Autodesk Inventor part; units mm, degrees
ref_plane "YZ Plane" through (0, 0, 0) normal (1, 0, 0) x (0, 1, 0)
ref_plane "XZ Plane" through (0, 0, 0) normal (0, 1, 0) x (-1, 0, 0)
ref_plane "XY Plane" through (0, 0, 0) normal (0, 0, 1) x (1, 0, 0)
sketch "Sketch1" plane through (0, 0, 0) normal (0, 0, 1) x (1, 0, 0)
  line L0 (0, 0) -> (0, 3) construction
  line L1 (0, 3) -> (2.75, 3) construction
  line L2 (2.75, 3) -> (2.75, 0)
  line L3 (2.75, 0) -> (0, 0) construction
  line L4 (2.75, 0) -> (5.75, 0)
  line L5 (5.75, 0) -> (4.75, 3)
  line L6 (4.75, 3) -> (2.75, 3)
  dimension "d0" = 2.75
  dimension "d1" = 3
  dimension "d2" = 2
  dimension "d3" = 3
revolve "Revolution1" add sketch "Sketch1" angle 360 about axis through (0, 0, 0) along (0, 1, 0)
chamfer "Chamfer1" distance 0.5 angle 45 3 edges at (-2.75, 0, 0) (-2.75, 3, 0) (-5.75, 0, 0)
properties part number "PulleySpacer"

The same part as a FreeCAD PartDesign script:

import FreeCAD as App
import Part
import Sketcher
from FreeCAD import Vector
Q = App.Units.Quantity


def edges_at(feature, points):
    """Names of the edges that pass closest to the given points."""
    edges = feature.Shape.Edges
    near = lambda p: min(range(len(edges)), key=lambda i: edges[i].distToShape(Part.Vertex(*p))[0])
    return sorted({f"Edge{near(p) + 1}" for p in points})

doc = App.newDocument("Part")
params = doc.addObject("Spreadsheet::Sheet", "Params")
for row, (alias, value) in enumerate([
    ("sketch1_width", "2 mm"),
    ("sketch1_width2", "3 mm"),
    ("revolution_angle", "360 deg"),
    ("chamfer_size", "0.5 mm"),
], start=1):
    params.set(f"A{row}", alias)
    params.set(f"B{row}", "=" + value)
    params.setAlias(f"B{row}", alias)

body = doc.addObject("PartDesign::Body", "Body")

# Sketch on XY plane
sketch1 = body.newObject("Sketcher::SketchObject", "Sketch")
sketch1.AttachmentSupport = (doc.getObject("XY_Plane"), [""])
sketch1.MapMode = "FlatFace"
sketch1.addGeometry([
    Part.LineSegment(Vector(4.8, 3, 0), Vector(2.8, 3, 0)),
    Part.LineSegment(Vector(2.8, 3, 0), Vector(2.8, 0, 0)),
    Part.LineSegment(Vector(2.8, 0, 0), Vector(5.8, 0, 0)),
    Part.LineSegment(Vector(5.8, 0, 0), Vector(4.8, 3, 0)),
], False)
sketch1.addConstraint([
    Sketcher.Constraint("Coincident", 0, 2, 1, 1),
    Sketcher.Constraint("Coincident", 1, 2, 2, 1),
    Sketcher.Constraint("Coincident", 2, 2, 3, 1),
    Sketcher.Constraint("Coincident", 3, 2, 0, 1),
    Sketcher.Constraint("Horizontal", 0),
    Sketcher.Constraint("Vertical", 1),
    Sketcher.Constraint("Horizontal", 2),
    Sketcher.Constraint("PointOnObject", 1, 2, -1),
    Sketcher.Constraint("Equal", 2, 1),
    Sketcher.Constraint("DistanceX", 0, 2, 0, 1, Q("2 mm")),
    Sketcher.Constraint("DistanceX", 2, 1, 2, 2, Q("3 mm")),
    Sketcher.Constraint("DistanceX", -1, 1, 0, 2, Q("2.75 mm")),
])
sketch1.setExpression("Constraints[9]", "Params.sketch1_width")
sketch1.setExpression("Constraints[10]", "Params.sketch1_width2")
revolution = body.newObject("PartDesign::Revolution", "Revolution")
revolution.Profile = sketch1
revolution.ReferenceAxis = (sketch1, ["V_Axis"])
revolution.setExpression("Angle", "Params.revolution_angle")
doc.recompute()

chamfer = body.newObject("PartDesign::Chamfer", "Chamfer")
chamfer.Base = (revolution, edges_at(revolution, [(-2.75, 0, 0), (-2.75, 3, 0), (-5.75, 0, 0)]))
chamfer.setExpression("Size", "Params.chamfer_size")

doc.recompute()
